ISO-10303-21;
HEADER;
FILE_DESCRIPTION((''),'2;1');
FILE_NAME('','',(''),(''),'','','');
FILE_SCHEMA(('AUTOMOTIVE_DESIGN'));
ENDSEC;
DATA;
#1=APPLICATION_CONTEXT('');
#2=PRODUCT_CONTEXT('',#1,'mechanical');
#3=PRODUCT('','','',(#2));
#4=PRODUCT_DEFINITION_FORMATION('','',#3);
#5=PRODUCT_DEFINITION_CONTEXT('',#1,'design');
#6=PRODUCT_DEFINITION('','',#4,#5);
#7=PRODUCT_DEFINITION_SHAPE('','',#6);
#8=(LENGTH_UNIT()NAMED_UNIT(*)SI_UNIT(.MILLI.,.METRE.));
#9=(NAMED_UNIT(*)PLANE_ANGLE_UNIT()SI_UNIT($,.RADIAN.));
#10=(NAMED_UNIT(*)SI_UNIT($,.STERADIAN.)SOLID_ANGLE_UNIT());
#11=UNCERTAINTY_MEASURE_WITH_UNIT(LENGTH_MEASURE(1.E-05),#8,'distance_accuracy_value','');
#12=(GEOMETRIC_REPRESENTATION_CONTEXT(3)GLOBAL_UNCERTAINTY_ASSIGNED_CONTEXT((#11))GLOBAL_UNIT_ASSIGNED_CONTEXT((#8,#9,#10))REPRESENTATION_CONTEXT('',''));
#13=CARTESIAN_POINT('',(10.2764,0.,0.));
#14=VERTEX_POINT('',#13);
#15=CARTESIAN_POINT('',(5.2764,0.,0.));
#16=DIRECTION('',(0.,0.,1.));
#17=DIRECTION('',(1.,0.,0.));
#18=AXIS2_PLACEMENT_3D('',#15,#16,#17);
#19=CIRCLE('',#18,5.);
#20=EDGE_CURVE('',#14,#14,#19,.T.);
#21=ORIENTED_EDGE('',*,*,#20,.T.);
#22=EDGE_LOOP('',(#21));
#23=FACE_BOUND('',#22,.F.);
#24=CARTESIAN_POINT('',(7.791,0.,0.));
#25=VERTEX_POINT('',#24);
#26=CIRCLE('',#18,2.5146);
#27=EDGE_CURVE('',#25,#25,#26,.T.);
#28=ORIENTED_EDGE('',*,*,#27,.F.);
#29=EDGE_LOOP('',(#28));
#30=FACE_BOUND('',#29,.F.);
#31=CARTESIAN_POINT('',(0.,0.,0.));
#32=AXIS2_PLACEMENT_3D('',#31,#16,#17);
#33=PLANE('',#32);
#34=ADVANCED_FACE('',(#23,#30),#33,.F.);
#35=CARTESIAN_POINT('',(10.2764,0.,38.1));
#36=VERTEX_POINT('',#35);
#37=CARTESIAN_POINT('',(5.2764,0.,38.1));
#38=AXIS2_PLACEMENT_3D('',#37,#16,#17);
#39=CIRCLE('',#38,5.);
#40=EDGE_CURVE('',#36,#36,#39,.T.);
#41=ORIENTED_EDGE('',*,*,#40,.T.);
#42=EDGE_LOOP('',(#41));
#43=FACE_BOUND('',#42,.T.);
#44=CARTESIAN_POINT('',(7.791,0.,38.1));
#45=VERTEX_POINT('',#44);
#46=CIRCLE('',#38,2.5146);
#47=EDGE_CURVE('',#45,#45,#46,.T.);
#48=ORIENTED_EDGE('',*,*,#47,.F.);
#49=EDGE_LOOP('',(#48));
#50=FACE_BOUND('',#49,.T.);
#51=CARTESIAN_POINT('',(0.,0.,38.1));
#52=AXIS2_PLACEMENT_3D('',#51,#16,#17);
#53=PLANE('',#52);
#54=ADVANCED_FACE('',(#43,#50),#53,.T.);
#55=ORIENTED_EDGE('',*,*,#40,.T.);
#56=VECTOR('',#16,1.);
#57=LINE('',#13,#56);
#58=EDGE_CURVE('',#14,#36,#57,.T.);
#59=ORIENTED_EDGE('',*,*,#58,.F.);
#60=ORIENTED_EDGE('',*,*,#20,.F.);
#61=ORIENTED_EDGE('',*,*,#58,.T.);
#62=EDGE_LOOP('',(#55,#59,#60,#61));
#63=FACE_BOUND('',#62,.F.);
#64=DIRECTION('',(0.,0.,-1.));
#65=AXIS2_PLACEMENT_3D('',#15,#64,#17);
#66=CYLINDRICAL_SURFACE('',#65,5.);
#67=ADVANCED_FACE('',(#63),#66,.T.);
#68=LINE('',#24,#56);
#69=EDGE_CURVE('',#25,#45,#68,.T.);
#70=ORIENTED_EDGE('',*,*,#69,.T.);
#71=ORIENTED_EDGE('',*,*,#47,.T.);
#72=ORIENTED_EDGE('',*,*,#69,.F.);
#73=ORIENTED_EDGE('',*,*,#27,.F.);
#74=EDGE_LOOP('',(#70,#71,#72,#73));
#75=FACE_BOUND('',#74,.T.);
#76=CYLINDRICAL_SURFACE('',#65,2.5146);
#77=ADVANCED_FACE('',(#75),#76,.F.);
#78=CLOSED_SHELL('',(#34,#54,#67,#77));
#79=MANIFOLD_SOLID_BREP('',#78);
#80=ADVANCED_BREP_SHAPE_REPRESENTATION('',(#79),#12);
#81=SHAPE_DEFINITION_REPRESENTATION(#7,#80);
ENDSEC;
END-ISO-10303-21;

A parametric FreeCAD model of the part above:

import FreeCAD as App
import Part
import Sketcher
from FreeCAD import Vector
Q = App.Units.Quantity

doc = App.newDocument("Part")
params = doc.addObject("Spreadsheet::Sheet", "Params")
for row, (alias, value) in enumerate([
    ("sketch1_diameter", "0.198 in"),
    ("pad1_length", "1.5 in"),
], start=1):
    params.set(f"A{row}", alias)
    params.set(f"B{row}", "=" + value)
    params.setAlias(f"B{row}", alias)

body = doc.addObject("PartDesign::Body", "Body")

sketch1 = body.newObject("Sketcher::SketchObject", "Sketch")
sketch1.AttachmentSupport = (doc.getObject("XY_Plane"), [""])
sketch1.MapMode = "FlatFace"
sketch1.addGeometry(Part.Circle(Vector(5.2764, 0, 0), Vector(0, 0, 1), 5), False)
sketch1.addGeometry(Part.Circle(Vector(5.2764, 0, 0), Vector(0, 0, 1), 2.5146), False)
sketch1.addConstraint(Sketcher.Constraint("Coincident", 1, 3, 0, 3))
sketch1.addConstraint(Sketcher.Constraint("PointOnObject", 0, 3, -1))
sketch1.addConstraint(Sketcher.Constraint("Diameter", 1, Q("0.198 in")))
sketch1.addConstraint(Sketcher.Constraint("Diameter", 0, Q("0.3937 in")))
sketch1.addConstraint(Sketcher.Constraint("DistanceX", -1, 1, 0, 3, Q("5.2764 mm")))
sketch1.setExpression("Constraints[2]", "Params.sketch1_diameter")
pad1 = body.newObject("PartDesign::Pad", "Pad")
pad1.Profile = sketch1
pad1.setExpression("Length", "Params.pad1_length")

doc.recompute()
